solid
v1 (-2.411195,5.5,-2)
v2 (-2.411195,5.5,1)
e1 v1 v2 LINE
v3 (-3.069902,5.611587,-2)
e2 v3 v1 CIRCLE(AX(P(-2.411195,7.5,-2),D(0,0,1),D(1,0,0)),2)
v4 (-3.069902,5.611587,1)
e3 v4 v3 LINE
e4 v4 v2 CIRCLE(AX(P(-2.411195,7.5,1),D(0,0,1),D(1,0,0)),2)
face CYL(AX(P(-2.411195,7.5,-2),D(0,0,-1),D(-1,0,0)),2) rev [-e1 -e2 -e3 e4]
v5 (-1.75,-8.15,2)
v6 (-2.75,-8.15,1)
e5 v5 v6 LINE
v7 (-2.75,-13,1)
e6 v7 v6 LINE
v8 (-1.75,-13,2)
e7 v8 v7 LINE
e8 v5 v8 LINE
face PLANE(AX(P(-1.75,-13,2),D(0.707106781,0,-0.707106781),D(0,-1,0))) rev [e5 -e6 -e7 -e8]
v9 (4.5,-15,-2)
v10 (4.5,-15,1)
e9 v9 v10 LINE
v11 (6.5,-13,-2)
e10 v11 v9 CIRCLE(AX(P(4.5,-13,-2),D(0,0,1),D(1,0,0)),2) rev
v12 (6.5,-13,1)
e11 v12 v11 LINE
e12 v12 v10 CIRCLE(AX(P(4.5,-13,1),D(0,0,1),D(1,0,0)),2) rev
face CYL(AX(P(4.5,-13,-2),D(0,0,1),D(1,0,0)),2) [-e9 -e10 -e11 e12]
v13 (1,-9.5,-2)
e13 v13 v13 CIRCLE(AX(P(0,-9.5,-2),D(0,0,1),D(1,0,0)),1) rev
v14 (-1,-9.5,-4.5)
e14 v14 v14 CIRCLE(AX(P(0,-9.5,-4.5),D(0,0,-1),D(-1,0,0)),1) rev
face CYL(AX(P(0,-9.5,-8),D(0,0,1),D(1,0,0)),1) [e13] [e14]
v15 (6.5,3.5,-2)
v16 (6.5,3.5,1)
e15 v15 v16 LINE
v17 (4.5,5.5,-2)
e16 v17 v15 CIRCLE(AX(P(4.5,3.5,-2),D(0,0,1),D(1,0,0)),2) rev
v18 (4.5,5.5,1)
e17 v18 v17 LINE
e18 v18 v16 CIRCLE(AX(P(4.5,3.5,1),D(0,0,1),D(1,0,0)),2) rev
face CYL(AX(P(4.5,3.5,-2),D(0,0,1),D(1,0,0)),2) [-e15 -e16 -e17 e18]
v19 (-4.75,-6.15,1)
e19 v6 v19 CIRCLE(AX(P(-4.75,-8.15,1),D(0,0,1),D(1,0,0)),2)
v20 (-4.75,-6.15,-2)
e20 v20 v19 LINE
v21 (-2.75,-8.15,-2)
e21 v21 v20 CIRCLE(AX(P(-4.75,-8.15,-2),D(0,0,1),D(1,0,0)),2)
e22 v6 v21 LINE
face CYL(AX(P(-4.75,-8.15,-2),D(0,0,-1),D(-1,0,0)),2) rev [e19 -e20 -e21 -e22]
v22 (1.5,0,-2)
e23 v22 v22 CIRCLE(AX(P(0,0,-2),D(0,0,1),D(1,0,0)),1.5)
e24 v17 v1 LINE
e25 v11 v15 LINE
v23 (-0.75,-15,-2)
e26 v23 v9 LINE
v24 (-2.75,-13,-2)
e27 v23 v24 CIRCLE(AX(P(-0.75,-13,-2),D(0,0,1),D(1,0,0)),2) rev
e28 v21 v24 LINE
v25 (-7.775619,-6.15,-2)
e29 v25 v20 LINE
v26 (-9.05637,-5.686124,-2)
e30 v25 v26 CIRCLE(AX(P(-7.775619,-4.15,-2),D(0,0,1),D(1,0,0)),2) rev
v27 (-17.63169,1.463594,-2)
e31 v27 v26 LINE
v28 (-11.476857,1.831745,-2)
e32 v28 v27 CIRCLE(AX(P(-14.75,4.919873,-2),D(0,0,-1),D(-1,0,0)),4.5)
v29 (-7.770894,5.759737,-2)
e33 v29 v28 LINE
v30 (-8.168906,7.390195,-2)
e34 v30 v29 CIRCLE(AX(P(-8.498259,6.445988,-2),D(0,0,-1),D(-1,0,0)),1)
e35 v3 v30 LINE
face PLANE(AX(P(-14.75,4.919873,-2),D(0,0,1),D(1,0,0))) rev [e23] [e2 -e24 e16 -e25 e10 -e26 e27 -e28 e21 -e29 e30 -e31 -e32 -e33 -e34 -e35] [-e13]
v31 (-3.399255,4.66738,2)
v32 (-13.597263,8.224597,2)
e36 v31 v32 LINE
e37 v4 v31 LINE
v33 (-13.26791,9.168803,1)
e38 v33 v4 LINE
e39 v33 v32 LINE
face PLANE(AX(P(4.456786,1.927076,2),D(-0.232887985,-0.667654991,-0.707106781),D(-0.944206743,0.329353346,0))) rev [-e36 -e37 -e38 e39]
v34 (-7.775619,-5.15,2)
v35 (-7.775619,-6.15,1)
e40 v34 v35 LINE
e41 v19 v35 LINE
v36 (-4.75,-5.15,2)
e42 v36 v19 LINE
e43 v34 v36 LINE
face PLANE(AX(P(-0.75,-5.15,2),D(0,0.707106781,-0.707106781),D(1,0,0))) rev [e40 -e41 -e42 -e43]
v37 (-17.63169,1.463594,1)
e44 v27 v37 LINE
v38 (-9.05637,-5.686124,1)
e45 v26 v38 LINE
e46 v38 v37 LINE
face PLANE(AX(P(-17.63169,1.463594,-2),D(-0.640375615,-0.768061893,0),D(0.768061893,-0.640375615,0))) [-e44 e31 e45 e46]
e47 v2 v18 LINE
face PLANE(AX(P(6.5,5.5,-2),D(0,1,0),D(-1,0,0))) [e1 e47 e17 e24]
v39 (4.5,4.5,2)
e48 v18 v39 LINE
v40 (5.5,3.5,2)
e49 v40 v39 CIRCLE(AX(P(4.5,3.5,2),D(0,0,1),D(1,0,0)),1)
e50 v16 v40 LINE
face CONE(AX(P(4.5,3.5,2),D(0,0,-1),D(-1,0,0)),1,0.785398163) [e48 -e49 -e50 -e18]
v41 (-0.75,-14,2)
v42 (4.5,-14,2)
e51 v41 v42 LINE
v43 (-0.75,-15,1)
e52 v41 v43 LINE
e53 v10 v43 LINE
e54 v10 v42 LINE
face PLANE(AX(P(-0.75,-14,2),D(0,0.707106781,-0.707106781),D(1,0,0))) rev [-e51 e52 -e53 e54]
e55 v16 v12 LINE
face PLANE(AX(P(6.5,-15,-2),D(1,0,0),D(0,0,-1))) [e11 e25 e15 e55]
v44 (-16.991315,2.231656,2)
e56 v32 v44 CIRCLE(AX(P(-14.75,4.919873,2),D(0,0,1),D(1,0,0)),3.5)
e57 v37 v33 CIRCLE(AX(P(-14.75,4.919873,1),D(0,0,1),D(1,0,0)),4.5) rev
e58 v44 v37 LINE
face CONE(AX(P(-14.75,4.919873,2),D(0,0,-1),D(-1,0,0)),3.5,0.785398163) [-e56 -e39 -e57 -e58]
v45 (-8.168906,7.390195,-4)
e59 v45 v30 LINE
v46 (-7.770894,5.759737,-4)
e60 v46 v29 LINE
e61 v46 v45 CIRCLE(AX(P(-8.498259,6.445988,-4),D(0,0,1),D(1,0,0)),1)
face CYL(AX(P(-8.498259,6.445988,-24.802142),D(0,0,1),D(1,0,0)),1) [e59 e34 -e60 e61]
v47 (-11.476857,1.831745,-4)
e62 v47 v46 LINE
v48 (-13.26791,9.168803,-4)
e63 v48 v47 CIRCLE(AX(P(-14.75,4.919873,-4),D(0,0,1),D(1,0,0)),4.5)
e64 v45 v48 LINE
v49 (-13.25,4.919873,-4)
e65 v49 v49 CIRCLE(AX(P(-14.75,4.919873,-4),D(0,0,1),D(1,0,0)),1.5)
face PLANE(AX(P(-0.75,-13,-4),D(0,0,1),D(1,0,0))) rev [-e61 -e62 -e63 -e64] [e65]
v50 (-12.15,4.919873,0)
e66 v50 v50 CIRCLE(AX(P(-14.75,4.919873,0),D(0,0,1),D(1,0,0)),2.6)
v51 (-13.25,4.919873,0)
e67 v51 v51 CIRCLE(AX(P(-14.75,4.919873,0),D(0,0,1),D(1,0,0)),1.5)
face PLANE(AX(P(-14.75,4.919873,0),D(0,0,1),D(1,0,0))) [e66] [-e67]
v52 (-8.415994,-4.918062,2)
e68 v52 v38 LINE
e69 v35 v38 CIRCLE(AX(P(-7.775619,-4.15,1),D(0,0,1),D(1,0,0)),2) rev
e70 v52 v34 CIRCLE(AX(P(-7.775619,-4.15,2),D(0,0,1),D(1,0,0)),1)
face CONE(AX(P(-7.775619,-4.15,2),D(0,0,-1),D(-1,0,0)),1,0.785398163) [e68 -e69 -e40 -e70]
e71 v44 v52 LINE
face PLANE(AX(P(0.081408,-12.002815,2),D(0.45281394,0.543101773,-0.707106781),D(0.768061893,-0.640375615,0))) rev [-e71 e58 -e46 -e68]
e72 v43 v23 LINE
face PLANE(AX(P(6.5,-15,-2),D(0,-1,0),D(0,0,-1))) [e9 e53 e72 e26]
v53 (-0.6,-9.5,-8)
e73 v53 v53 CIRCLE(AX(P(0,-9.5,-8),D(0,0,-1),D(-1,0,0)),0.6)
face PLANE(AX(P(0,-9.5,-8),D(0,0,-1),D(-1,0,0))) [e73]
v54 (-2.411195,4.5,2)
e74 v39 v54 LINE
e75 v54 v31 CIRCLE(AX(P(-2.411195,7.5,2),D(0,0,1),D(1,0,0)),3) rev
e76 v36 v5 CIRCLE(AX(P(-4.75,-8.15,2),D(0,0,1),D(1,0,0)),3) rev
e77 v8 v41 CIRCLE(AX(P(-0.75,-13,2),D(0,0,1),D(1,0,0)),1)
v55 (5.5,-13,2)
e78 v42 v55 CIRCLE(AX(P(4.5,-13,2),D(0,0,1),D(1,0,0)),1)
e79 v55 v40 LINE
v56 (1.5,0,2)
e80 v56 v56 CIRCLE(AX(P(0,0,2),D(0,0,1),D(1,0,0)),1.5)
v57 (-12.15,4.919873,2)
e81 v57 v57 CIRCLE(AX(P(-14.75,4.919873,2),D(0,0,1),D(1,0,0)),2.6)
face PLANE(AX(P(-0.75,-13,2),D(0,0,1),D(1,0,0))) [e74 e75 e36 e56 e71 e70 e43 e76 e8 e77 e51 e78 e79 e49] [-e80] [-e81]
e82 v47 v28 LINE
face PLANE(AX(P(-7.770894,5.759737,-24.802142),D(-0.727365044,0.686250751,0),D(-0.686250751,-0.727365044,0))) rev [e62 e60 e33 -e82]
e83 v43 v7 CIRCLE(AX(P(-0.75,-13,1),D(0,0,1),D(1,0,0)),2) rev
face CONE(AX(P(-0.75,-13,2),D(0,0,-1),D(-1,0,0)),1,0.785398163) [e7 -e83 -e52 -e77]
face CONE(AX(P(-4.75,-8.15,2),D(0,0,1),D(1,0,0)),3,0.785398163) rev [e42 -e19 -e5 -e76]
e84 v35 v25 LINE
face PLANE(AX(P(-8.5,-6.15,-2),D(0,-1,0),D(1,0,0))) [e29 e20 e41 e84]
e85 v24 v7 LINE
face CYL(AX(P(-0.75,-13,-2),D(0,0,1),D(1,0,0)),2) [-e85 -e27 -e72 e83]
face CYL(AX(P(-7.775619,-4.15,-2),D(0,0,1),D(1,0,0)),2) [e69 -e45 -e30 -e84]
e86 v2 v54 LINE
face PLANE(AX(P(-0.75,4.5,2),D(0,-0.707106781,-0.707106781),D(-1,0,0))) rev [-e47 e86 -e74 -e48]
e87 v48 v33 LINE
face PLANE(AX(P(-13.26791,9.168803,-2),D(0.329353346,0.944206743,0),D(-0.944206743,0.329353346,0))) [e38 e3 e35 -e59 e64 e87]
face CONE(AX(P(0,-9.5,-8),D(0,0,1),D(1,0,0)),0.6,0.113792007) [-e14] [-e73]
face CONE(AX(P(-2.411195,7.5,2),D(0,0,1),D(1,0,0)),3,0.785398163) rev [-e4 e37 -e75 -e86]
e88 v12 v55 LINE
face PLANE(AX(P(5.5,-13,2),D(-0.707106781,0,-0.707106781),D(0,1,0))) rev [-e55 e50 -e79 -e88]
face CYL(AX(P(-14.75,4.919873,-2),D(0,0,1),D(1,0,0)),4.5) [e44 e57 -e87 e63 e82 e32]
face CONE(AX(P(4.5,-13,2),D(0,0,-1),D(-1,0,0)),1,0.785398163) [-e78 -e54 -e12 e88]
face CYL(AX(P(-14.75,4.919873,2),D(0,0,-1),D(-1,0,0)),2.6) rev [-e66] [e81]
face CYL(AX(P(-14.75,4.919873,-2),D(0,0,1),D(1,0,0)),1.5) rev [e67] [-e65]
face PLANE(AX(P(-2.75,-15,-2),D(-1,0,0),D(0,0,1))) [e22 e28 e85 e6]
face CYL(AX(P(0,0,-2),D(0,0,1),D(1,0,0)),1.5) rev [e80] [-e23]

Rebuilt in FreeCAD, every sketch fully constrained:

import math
import FreeCAD as App
import Part
import Sketcher

V = App.Vector
Q = App.Units.Quantity


def edges_at(feature, points):
    """Names of the edges that pass closest to the given points."""
    edges = feature.Shape.Edges
    near = lambda p: min(range(len(edges)), key=lambda i: edges[i].distToShape(Part.Vertex(*p))[0])
    return sorted({f"Edge{near(p) + 1}" for p in points})

doc = App.newDocument("Part")
body = doc.addObject("PartDesign::Body", "Body")

sketch1 = body.newObject("Sketcher::SketchObject", "Sketch")
sketch1.AttachmentSupport = (doc.getObject("XY_Plane"), [""])
sketch1.MapMode = "FlatFace"
sketch1.addGeometry(Part.LineSegment(V(-2.75, -6.15, 0), V(-2.75, -15, 0)), False)
sketch1.addGeometry(Part.LineSegment(V(-2.75, -15, 0), V(6.5, -15, 0)), False)
sketch1.addGeometry(Part.LineSegment(V(6.5, -15, 0), V(6.5, 5.5, 0)), False)
sketch1.addGeometry(Part.LineSegment(V(6.5, 5.5, 0), V(-2.75, 5.5, 0)), False)
sketch1.addGeometry(Part.LineSegment(V(-2.75, 5.5, 0), V(-13.26791, 9.168803, 0)), False)
sketch1.addGeometry(Part.ArcOfCircle(Part.Circle(V(-14.75, 4.919873, 0), V(0, 0, 1), 4.5), math.radians(70.770469), math.radians(230.180166)), False)
sketch1.addGeometry(Part.LineSegment(V(-17.63169, 1.463594, 0), V(-8.5, -6.15, 0)), False)
sketch1.addGeometry(Part.LineSegment(V(-8.5, -6.15, 0), V(-2.75, -6.15, 0)), False)
sketch1.addGeometry(Part.Circle(V(0, 0, 0), V(0, 0, 1), 1.5), False)
sketch1.addGeometry(Part.Circle(V(-14.75, 4.919873, 0), V(0, 0, 1), 1.5), False)
sketch1.addConstraint(Sketcher.Constraint("Coincident", 0, 2, 1, 1))
sketch1.addConstraint(Sketcher.Constraint("Coincident", 1, 2, 2, 1))
sketch1.addConstraint(Sketcher.Constraint("Coincident", 2, 2, 3, 1))
sketch1.addConstraint(Sketcher.Constraint("Coincident", 3, 2, 4, 1))
sketch1.addConstraint(Sketcher.Constraint("Tangent", 4, 2, 5, 1))
sketch1.addConstraint(Sketcher.Constraint("Tangent", 5, 2, 6, 1))
sketch1.addConstraint(Sketcher.Constraint("Coincident", 6, 2, 7, 1))
sketch1.addConstraint(Sketcher.Constraint("Coincident", 7, 2, 0, 1))
sketch1.addConstraint(Sketcher.Constraint("Vertical", 0))
sketch1.addConstraint(Sketcher.Constraint("Horizontal", 1))
sketch1.addConstraint(Sketcher.Constraint("Vertical", 2))
sketch1.addConstraint(Sketcher.Constraint("Horizontal", 3))
sketch1.addConstraint(Sketcher.Constraint("Horizontal", 7))
sketch1.addConstraint(Sketcher.Constraint("Coincident", 8, 3, -1, 1))
sketch1.addConstraint(Sketcher.Constraint("Coincident", 9, 3, 5, 3))
sketch1.addConstraint(Sketcher.Constraint("Equal", 8, 9))
sketch1.addConstraint(Sketcher.Constraint("Vertical", 0, 2, 3, 2))
sketch1.addConstraint(Sketcher.Constraint("Diameter", 8, Q("3 mm")))
sketch1.addConstraint(Sketcher.Constraint("Radius", 5, Q("4.5 mm")))
sketch1.addConstraint(Sketcher.Constraint("DistanceY", 2, 1, 2, 2, Q("20.5 mm")))
sketch1.addConstraint(Sketcher.Constraint("DistanceY", 0, 2, -1, 1, Q("15 mm")))
sketch1.addConstraint(Sketcher.Constraint("DistanceX", 5, 3, 0, 2, Q("12 mm")))
sketch1.addConstraint(Sketcher.Constraint("DistanceX", 1, 1, 1, 2, Q("9.25 mm")))
sketch1.addConstraint(Sketcher.Constraint("DistanceX", 7, 1, 7, 2, Q("5.75 mm")))
sketch1.addConstraint(Sketcher.Constraint("DistanceY", 0, 2, 0, 1, Q("8.85 mm")))
sketch1.addConstraint(Sketcher.Constraint("DistanceX", -1, 1, 1, 2, Q("6.5 mm")))
sketch1.addConstraint(Sketcher.Constraint("DistanceX", 4, 2, -1, 1, Q("13.26791 mm")))
pad1 = body.newObject("PartDesign::Pad", "Pad")
pad1.Profile = sketch1
pad1.Length = 2
pad1.Reversed = True
doc.recompute()

fillet = body.newObject("PartDesign::Fillet", "Fillet")
fillet.Base = (pad1, edges_at(pad1, [
    (6.5, -15, -1),
    (-2.75, -15, -1),
    (-2.75, -6.15, -1),
    (-8.5, -6.15, -1),
    (-2.75, 5.5, -1),
    (6.5, 5.5, -1),
]))
fillet.Radius = 2

sketch2 = body.newObject("Sketcher::SketchObject", "Sketch001")
sketch2.AttachmentSupport = (doc.getObject("XY_Plane"), [""])
sketch2.MapMode = "FlatFace"
sketch2.addGeometry(Part.LineSegment(V(-0.75, -15, 0), V(4.5, -15, 0)), False)
sketch2.addGeometry(Part.ArcOfCircle(Part.Circle(V(4.5, -13, 0), V(0, 0, 1), 2), math.radians(-90), math.radians(0)), False)
sketch2.addGeometry(Part.LineSegment(V(6.5, -13, 0), V(6.5, 3.5, 0)), False)
sketch2.addGeometry(Part.ArcOfCircle(Part.Circle(V(4.5, 3.5, 0), V(0, 0, 1), 2), math.radians(0), math.radians(90)), False)
sketch2.addGeometry(Part.LineSegment(V(4.5, 5.5, 0), V(-2.411195, 5.5, 0)), False)
sketch2.addGeometry(Part.ArcOfCircle(Part.Circle(V(-2.411195, 7.5, 0), V(0, 0, 1), 2), math.radians(-109.229531), math.radians(-90)), False)
sketch2.addGeometry(Part.LineSegment(V(-3.069902, 5.611587, 0), V(-13.26791, 9.168803, 0)), False)
sketch2.addGeometry(Part.ArcOfCircle(Part.Circle(V(-14.75, 4.919873, 0), V(0, 0, 1), 4.5), math.radians(70.770469), math.radians(230.180166)), False)
sketch2.addGeometry(Part.LineSegment(V(-17.63169, 1.463594, 0), V(-9.05637, -5.686124, 0)), False)
sketch2.addGeometry(Part.ArcOfCircle(Part.Circle(V(-7.775619, -4.15, 0), V(0, 0, 1), 2), math.radians(-129.819834), math.radians(-90)), False)
sketch2.addGeometry(Part.LineSegment(V(-7.775619, -6.15, 0), V(-4.75, -6.15, 0)), False)
sketch2.addGeometry(Part.ArcOfCircle(Part.Circle(V(-4.75, -8.15, 0), V(0, 0, 1), 2), math.radians(0), math.radians(90)), False)
sketch2.addGeometry(Part.LineSegment(V(-2.75, -8.15, 0), V(-2.75, -13, 0)), False)
sketch2.addGeometry(Part.ArcOfCircle(Part.Circle(V(-0.75, -13, 0), V(0, 0, 1), 2), math.radians(-180), math.radians(-90)), False)
sketch2.addGeometry(Part.Circle(V(0, 0, 0), V(0, 0, 1), 1.5), False)
sketch2.addGeometry(Part.Circle(V(-14.75, 4.919873, 0), V(0, 0, 1), 2.6), False)
sketch2.addConstraint(Sketcher.Constraint("Tangent", 0, 2, 1, 1))
sketch2.addConstraint(Sketcher.Constraint("Tangent", 1, 2, 2, 1))
sketch2.addConstraint(Sketcher.Constraint("Tangent", 2, 2, 3, 1))
sketch2.addConstraint(Sketcher.Constraint("Tangent", 3, 2, 4, 1))
sketch2.addConstraint(Sketcher.Constraint("Tangent", 4, 2, 5, 2))
sketch2.addConstraint(Sketcher.Constraint("Tangent", 5, 1, 6, 1))
sketch2.addConstraint(Sketcher.Constraint("Tangent", 6, 2, 7, 1))
sketch2.addConstraint(Sketcher.Constraint("Tangent", 7, 2, 8, 1))
sketch2.addConstraint(Sketcher.Constraint("Tangent", 8, 2, 9, 1))
sketch2.addConstraint(Sketcher.Constraint("Tangent", 9, 2, 10, 1))
sketch2.addConstraint(Sketcher.Constraint("Tangent", 10, 2, 11, 2))
sketch2.addConstraint(Sketcher.Constraint("Tangent", 11, 1, 12, 1))
sketch2.addConstraint(Sketcher.Constraint("Tangent", 12, 2, 13, 1))
sketch2.addConstraint(Sketcher.Constraint("Tangent", 13, 2, 0, 1))
sketch2.addConstraint(Sketcher.Constraint("Horizontal", 0))
sketch2.addConstraint(Sketcher.Constraint("Vertical", 2))
sketch2.addConstraint(Sketcher.Constraint("Horizontal", 4))
sketch2.addConstraint(Sketcher.Constraint("Horizontal", 10))
sketch2.addConstraint(Sketcher.Constraint("Vertical", 12))
sketch2.addConstraint(Sketcher.Constraint("Coincident", 14, 3, -1, 1))
sketch2.addConstraint(Sketcher.Constraint("Coincident", 15, 3, 7, 3))
sketch2.addConstraint(Sketcher.Constraint("Equal", 1, 3))
sketch2.addConstraint(Sketcher.Constraint("Equal", 3, 5))
sketch2.addConstraint(Sketcher.Constraint("Equal", 5, 9))
sketch2.addConstraint(Sketcher.Constraint("Equal", 9, 11))
sketch2.addConstraint(Sketcher.Constraint("Equal", 11, 13))
sketch2.addConstraint(Sketcher.Constraint("Diameter", 14, Q("3 mm")))
sketch2.addConstraint(Sketcher.Constraint("Radius", 1, Q("2 mm")))
sketch2.addConstraint(Sketcher.Constraint("Diameter", 15, Q("5.2 mm")))
sketch2.addConstraint(Sketcher.Constraint("Radius", 7, Q("4.5 mm")))
sketch2.addConstraint(Sketcher.Constraint("DistanceY", 2, 1, 2, 2, Q("16.5 mm")))
sketch2.addConstraint(Sketcher.Constraint("DistanceY", 1, 3, -1, 1, Q("13 mm")))
sketch2.addConstraint(Sketcher.Constraint("DistanceX", 7, 3, 11, 3, Q("10 mm")))
sketch2.addConstraint(Sketcher.Constraint("DistanceX", 0, 1, 0, 2, Q("5.25 mm")))
sketch2.addConstraint(Sketcher.Constraint("DistanceY", 12, 2, 12, 1, Q("4.85 mm")))
sketch2.addConstraint(Sketcher.Constraint("DistanceX", -1, 1, 1, 3, Q("4.5 mm")))
sketch2.addConstraint(Sketcher.Constraint("DistanceX", 10, 1, 10, 2, Q("3.025619 mm")))
sketch2.addConstraint(Sketcher.Constraint("DistanceX", 5, 1, -1, 1, Q("3.069902 mm")))
sketch2.addConstraint(Sketcher.Constraint("Distance", 6, Q("10.800609 mm")))
pad2 = body.newObject("PartDesign::Pad", "Pad001")
pad2.Profile = sketch2
pad2.Length = 2
doc.recompute()

chamfer = body.newObject("PartDesign::Chamfer", "Chamfer")
chamfer.Base = (pad2, edges_at(pad2, [
    (-2.164, -14.414, 2),
    (1.875, -15, 2),
    (5.914, -14.414, 2),
    (6.5, -4.75, 2),
    (5.914, 4.914, 2),
    (1.044, 5.5, 2),
    (-2.745, 5.528, 2),
    (-8.169, 7.39, 2),
    (-18.666, 7.137, 2),
    (-13.344, -2.111, 2),
    (-8.457, -6.03, 2),
    (-6.263, -6.15, 2),
    (-3.336, -6.736, 2),
    (-2.75, -10.575, 2),
]))
chamfer.Size = 1

sketch3 = body.newObject("Sketcher::SketchObject", "Sketch002")
sketch3.AttachmentSupport = (doc.getObject("XY_Plane"), [""])
sketch3.MapMode = "FlatFace"
sketch3.AttachmentOffset = App.Placement(V(0, 0, -2), App.Rotation())
sketch3.addGeometry(Part.Circle(V(0, -9.5, 0), V(0, 0, 1), 1), False)
sketch3.addConstraint(Sketcher.Constraint("PointOnObject", 0, 3, -2))
sketch3.addConstraint(Sketcher.Constraint("Diameter", 0, Q("2 mm")))
sketch3.addConstraint(Sketcher.Constraint("DistanceY", 0, 3, -1, 1, Q("9.5 mm")))
pad3 = body.newObject("PartDesign::Pad", "Pad002")
pad3.Profile = sketch3
pad3.Length = 6
pad3.Reversed = True
doc.recompute()

chamfer2 = body.newObject("PartDesign::Chamfer", "Chamfer001")
chamfer2.Base = (pad3, edges_at(pad3, [(-1, -9.5, -8)]))
chamfer2.ChamferType = "Two distances"
chamfer2.Size = 3.5
chamfer2.Size2 = 0.4

sketch4 = body.newObject("Sketcher::SketchObject", "Sketch003")
sketch4.AttachmentSupport = (doc.getObject("XY_Plane"), [""])
sketch4.MapMode = "FlatFace"
sketch4.AttachmentOffset = App.Placement(V(0, 0, -2), App.Rotation())
sketch4.addGeometry(Part.LineSegment(V(-13.26791, 9.168803, 0), V(-8.168906, 7.390195, 0)), False)
sketch4.addGeometry(Part.ArcOfCircle(Part.Circle(V(-8.498259, 6.445988, 0), V(0, 0, 1), 1), math.radians(-43.334051), math.radians(70.770469)), False)
sketch4.addGeometry(Part.LineSegment(V(-7.770894, 5.759737, 0), V(-11.476857, 1.831745, 0)), False)
sketch4.addGeometry(Part.ArcOfCircle(Part.Circle(V(-14.75, 4.919873, 0), V(0, 0, 1), 4.5), math.radians(70.770469), math.radians(316.665949)), False)
sketch4.addGeometry(Part.Circle(V(-14.75, 4.919873, 0), V(0, 0, 1), 1.5), False)
sketch4.addConstraint(Sketcher.Constraint("Tangent", 0, 2, 1, 2))
sketch4.addConstraint(Sketcher.Constraint("Tangent", 1, 1, 2, 1))
sketch4.addConstraint(Sketcher.Constraint("Tangent", 2, 2, 3, 2))
sketch4.addConstraint(Sketcher.Constraint("Tangent", 3, 1, 0, 1))
sketch4.addConstraint(Sketcher.Constraint("Coincident", 4, 3, 3, 3))
sketch4.addConstraint(Sketcher.Constraint("Diameter", 4, Q("3 mm")))
sketch4.addConstraint(Sketcher.Constraint("Radius", 1, Q("1 mm")))
sketch4.addConstraint(Sketcher.Constraint("Radius", 3, Q("4.5 mm")))
sketch4.addConstraint(Sketcher.Constraint("DistanceX", 3, 3, -1, 1, Q("14.75 mm")))
sketch4.addConstraint(Sketcher.Constraint("DistanceX", 2, 2, 1, 3, Q("2.978598 mm")))
sketch4.addConstraint(Sketcher.Constraint("DistanceX", 1, 3, -1, 1, Q("8.498259 mm")))
sketch4.addConstraint(Sketcher.Constraint("DistanceY", -1, 1, 1, 3, Q("6.445988 mm")))
pad4 = body.newObject("PartDesign::Pad", "Pad003")
pad4.Profile = sketch4
pad4.Length = 2
pad4.Reversed = True

doc.recompute()
